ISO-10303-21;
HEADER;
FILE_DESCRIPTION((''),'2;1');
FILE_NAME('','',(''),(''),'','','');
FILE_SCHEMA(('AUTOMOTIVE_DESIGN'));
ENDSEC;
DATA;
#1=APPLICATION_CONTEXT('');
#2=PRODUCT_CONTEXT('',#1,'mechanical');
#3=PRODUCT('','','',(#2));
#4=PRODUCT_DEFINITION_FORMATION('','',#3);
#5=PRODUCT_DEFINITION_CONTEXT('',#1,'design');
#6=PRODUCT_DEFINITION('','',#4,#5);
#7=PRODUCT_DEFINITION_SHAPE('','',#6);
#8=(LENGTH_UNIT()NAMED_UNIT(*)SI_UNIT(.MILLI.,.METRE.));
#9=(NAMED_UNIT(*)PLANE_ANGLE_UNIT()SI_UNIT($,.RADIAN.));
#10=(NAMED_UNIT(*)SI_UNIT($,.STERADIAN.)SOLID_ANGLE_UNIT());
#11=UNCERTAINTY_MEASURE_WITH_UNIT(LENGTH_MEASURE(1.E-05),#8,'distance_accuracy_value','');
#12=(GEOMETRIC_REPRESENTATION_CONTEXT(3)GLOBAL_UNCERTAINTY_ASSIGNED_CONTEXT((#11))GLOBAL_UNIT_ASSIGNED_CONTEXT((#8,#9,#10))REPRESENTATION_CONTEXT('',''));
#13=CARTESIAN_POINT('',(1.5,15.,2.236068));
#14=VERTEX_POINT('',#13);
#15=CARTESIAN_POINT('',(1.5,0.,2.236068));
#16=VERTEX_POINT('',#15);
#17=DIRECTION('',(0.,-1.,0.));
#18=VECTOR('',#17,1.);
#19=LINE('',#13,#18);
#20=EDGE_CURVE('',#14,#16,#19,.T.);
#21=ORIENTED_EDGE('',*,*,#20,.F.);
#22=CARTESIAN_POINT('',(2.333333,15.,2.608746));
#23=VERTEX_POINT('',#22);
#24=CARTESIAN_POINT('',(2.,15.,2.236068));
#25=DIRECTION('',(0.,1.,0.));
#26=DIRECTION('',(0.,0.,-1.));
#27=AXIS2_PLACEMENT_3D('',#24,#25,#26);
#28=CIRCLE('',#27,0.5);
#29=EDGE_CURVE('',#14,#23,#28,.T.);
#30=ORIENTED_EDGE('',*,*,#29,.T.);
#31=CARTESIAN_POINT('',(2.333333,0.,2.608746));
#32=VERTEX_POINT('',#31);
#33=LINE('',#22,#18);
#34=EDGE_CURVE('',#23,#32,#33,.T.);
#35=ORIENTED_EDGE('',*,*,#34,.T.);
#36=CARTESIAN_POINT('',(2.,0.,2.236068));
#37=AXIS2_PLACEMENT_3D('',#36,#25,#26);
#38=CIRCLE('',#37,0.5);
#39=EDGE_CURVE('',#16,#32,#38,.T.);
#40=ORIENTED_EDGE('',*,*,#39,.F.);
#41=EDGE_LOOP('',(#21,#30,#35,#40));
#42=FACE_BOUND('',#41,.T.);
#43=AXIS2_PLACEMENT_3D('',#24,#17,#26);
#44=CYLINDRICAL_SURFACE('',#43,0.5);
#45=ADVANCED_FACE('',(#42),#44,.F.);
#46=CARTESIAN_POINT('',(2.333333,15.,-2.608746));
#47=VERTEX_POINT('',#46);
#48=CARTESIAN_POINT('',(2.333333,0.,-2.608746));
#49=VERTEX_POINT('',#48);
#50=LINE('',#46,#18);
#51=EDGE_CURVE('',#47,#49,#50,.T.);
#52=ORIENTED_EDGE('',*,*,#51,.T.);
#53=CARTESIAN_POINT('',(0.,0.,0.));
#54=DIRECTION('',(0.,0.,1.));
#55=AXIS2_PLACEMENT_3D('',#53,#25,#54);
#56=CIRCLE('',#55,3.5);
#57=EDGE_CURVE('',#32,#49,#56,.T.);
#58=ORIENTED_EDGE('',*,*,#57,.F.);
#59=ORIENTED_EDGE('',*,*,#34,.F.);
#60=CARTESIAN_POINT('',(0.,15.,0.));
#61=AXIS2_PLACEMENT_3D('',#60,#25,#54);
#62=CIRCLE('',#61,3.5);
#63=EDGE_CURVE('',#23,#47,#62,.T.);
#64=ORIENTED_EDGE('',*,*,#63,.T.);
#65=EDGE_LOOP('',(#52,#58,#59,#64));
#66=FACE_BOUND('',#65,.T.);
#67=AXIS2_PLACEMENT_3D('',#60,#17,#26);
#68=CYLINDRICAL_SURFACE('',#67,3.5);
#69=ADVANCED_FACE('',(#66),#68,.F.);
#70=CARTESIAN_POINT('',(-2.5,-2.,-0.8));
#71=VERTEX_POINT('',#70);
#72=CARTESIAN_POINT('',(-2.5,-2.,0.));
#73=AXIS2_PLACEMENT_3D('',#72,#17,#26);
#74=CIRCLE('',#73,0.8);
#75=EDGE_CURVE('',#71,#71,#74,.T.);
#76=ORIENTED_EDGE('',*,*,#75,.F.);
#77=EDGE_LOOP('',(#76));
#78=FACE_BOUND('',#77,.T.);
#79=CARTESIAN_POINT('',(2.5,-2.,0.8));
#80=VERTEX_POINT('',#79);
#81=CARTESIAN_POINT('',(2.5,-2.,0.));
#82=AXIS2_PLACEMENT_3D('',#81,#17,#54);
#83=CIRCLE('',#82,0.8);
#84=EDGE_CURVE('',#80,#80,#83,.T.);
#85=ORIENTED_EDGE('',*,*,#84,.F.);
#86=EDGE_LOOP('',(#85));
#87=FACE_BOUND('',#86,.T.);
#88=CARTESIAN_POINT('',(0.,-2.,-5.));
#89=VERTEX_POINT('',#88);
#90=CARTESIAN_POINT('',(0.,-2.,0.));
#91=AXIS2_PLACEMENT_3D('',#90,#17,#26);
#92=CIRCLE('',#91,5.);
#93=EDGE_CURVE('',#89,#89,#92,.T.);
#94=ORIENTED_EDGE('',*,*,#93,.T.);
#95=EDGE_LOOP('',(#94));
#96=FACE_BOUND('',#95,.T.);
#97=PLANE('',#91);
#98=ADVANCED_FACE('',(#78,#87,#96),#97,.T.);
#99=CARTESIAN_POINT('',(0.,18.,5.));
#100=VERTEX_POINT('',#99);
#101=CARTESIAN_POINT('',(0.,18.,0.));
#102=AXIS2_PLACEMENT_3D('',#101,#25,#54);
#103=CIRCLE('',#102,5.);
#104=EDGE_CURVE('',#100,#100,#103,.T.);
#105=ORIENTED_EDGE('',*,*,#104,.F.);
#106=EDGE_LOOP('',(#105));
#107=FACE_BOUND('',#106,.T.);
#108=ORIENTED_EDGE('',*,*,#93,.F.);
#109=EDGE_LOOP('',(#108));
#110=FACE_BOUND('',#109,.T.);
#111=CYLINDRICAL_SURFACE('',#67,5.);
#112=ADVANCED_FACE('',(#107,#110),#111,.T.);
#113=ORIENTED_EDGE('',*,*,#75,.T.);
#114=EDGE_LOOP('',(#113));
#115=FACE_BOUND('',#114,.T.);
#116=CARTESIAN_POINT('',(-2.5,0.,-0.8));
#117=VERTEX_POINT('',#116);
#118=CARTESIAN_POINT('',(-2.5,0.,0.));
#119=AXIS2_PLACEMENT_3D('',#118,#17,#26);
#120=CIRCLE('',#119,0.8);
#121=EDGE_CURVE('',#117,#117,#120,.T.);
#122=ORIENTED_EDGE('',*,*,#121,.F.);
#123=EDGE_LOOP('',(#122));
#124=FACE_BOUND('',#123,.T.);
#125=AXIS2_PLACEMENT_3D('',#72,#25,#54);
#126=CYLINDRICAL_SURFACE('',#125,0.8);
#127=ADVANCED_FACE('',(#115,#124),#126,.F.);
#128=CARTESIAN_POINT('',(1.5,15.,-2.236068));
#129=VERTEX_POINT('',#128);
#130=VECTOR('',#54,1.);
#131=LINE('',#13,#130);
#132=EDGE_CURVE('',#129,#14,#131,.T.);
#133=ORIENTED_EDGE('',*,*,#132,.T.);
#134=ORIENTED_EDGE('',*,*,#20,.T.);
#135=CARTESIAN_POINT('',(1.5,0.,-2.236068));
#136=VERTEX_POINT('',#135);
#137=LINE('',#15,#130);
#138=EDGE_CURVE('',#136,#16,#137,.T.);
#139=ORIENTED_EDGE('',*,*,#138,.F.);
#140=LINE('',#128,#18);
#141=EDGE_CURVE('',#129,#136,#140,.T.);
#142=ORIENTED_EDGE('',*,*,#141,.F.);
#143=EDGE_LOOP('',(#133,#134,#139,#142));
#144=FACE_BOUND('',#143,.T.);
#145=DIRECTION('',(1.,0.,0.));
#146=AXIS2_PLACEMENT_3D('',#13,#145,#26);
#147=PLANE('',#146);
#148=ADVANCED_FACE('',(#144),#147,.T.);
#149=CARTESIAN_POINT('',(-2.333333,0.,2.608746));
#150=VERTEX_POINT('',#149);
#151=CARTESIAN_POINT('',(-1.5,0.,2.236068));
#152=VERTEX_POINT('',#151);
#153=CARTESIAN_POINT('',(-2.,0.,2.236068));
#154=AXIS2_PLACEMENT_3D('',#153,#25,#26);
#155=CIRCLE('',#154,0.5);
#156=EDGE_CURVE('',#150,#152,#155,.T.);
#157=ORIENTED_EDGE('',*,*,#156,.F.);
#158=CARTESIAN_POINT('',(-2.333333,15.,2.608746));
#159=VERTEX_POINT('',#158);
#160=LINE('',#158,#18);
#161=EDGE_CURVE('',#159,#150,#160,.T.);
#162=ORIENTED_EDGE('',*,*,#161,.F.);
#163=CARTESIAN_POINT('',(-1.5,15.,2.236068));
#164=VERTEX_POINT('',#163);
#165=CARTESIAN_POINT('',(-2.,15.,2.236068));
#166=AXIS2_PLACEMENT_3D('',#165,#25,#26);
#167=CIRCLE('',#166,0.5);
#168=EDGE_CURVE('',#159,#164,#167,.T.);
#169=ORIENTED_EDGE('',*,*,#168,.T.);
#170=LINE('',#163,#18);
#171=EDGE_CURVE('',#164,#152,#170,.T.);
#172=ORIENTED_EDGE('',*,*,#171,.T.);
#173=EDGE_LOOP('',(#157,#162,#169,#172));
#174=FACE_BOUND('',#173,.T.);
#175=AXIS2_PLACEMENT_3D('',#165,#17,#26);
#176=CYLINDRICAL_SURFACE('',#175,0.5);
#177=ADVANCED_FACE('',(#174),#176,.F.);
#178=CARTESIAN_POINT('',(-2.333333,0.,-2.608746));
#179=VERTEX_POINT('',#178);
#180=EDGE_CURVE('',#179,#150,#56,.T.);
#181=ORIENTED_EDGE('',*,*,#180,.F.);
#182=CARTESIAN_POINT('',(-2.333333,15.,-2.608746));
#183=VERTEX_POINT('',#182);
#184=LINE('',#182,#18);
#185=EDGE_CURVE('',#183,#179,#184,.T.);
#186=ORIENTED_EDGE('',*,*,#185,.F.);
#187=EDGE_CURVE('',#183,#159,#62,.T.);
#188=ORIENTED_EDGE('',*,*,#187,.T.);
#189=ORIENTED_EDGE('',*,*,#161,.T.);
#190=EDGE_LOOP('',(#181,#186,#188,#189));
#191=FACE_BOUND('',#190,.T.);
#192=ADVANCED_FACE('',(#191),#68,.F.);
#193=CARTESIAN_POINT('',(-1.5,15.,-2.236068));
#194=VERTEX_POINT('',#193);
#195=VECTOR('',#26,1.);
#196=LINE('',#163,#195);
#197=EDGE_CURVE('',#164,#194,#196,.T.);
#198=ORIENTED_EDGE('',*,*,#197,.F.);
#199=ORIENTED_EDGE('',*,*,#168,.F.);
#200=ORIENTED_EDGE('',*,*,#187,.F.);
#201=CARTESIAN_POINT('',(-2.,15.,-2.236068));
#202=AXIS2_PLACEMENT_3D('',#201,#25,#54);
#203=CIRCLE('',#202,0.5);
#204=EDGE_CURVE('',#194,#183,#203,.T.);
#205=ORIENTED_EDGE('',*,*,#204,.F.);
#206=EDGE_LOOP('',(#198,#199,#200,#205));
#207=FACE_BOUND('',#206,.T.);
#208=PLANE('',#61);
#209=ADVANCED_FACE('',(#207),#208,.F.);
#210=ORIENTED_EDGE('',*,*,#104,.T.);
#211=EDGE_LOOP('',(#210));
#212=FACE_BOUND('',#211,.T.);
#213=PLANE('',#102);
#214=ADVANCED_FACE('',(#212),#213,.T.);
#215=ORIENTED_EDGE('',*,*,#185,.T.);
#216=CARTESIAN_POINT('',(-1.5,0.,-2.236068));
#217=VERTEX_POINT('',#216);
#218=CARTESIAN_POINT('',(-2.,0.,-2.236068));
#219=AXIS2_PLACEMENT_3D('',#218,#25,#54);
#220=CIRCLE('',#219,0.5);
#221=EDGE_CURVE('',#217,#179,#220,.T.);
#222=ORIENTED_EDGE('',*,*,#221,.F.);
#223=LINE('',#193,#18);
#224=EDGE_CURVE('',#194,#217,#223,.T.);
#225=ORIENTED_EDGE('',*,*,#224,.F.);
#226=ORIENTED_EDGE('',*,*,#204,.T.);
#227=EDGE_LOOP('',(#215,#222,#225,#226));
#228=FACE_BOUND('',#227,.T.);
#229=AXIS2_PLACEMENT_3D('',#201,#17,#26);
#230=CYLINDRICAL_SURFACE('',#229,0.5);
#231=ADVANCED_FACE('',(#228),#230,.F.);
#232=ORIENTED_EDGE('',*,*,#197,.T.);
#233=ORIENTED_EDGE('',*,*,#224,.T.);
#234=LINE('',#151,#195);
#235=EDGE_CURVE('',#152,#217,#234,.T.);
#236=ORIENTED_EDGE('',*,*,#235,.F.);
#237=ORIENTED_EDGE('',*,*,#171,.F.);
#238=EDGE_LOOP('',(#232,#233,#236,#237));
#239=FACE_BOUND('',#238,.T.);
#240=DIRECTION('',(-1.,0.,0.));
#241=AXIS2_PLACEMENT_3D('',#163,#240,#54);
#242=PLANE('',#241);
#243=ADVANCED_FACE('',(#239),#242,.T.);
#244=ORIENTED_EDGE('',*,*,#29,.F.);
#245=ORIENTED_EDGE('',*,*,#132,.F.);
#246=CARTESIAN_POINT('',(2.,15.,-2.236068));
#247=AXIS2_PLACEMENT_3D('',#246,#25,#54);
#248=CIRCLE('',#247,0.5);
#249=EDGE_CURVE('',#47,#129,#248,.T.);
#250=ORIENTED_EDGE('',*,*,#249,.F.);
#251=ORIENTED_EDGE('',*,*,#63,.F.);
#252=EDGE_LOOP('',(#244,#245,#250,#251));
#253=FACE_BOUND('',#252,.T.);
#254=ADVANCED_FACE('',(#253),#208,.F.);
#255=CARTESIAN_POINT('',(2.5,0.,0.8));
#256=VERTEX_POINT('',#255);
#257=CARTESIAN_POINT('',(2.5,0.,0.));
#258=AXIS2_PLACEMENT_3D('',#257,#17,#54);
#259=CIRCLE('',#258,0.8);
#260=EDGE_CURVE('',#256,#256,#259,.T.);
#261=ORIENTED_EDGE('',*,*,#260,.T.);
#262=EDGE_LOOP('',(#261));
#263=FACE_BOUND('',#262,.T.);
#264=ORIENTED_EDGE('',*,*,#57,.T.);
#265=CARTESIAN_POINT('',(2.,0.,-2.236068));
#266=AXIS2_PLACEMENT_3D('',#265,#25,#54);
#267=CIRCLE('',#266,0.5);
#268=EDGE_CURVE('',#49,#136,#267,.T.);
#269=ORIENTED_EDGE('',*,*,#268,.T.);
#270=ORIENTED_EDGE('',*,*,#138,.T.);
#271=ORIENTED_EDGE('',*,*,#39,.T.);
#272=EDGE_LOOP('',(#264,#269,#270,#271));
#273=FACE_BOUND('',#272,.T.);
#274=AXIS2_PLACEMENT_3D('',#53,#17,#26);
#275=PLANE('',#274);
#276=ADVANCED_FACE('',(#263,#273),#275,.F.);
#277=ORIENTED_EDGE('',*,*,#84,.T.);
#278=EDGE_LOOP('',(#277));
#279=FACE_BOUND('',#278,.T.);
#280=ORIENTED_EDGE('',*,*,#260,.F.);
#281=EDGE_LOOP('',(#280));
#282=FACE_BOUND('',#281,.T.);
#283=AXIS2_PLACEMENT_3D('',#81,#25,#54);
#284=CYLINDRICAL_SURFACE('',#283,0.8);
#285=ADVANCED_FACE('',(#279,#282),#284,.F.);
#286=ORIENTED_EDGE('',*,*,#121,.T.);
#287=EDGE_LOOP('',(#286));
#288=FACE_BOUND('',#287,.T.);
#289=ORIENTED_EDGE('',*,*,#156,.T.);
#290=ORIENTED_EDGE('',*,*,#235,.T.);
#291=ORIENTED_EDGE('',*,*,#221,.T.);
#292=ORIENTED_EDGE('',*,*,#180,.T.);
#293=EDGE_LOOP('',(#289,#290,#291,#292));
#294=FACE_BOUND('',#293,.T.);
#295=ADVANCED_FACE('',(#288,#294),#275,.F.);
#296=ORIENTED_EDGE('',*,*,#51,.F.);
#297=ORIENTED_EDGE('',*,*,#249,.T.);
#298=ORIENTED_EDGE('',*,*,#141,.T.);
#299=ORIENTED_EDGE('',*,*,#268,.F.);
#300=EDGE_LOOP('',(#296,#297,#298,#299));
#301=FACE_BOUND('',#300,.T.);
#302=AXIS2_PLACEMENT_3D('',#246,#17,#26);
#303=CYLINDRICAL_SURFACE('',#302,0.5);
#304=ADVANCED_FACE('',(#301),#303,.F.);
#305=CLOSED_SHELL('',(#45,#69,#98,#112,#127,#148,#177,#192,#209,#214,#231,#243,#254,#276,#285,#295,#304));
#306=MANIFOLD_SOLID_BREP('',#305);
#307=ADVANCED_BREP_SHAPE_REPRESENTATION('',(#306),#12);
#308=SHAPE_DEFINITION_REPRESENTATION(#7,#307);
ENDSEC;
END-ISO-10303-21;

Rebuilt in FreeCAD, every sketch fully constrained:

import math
import FreeCAD as App
import Part
import Sketcher
from FreeCAD import Vector
Q = App.Units.Quantity

doc = App.newDocument("Part")
params = doc.addObject("Spreadsheet::Sheet", "Params")
for row, (alias, value) in enumerate([
    ("sketch1_diameter", "10 mm"),
    ("sketch1_radius", "0.5 mm"),
    ("sketch1_radius2", "3.5 mm"),
    ("pad1_length", "15 mm"),
    ("sketch2_diameter", "10 mm"),
    ("sketch2_diameter2", "1.6 mm"),
    ("pad2_length", "2 mm"),
    ("sketch3_diameter", "10 mm"),
    ("pad3_length", "3 mm"),
], start=1):
    params.set(f"A{row}", alias)
    params.set(f"B{row}", "=" + value)
    params.setAlias(f"B{row}", alias)

body = doc.addObject("PartDesign::Body", "Body")

# Sketch on XZ plane
sketch1 = body.newObject("Sketcher::SketchObject", "Sketch")
sketch1.AttachmentSupport = (doc.getObject("XZ_Plane"), [""])
sketch1.MapMode = "FlatFace"
sketch1.addGeometry([
    Part.Circle(Vector(0, 0, 0), Vector(0, 0, 1), 5),  # 0
    Part.LineSegment(Vector(-1.5, -2.236068, 0), Vector(-1.5, 2.236068, 0)),  # 1
    Part.ArcOfCircle(Part.Circle(Vector(-2, 2.236068, 0), Vector(0, 0, 1), 0.5), math.radians(0), math.radians(131.810315)),  # 2
    Part.ArcOfCircle(Part.Circle(Vector(0, 0, 0), Vector(0, 0, 1), 3.5), math.radians(131.810315), math.radians(228.189685)),  # 3
    Part.ArcOfCircle(Part.Circle(Vector(-2, -2.236068, 0), Vector(0, 0, 1), 0.5), math.radians(-131.810315), math.radians(0)),  # 4
    Part.ArcOfCircle(Part.Circle(Vector(2, 2.236068, 0), Vector(0, 0, 1), 0.5), math.radians(48.189685), math.radians(180)),  # 5
    Part.LineSegment(Vector(1.5, 2.236068, 0), Vector(1.5, -2.236068, 0)),  # 6
    Part.ArcOfCircle(Part.Circle(Vector(2, -2.236068, 0), Vector(0, 0, 1), 0.5), math.radians(180), math.radians(311.810315)),  # 7
    Part.ArcOfCircle(Part.Circle(Vector(0, 0, 0), Vector(0, 0, 1), 3.5), math.radians(-48.189685), math.radians(48.189685)),  # 8
], False)
sketch1.addConstraint([
    Sketcher.Constraint("Tangent", 1, 2, 2, 1),
    Sketcher.Constraint("Tangent", 2, 2, 3, 1),
    Sketcher.Constraint("Tangent", 3, 2, 4, 1),
    Sketcher.Constraint("Tangent", 4, 2, 1, 1),
    Sketcher.Constraint("Tangent", 5, 2, 6, 1),
    Sketcher.Constraint("Tangent", 6, 2, 7, 1),
    Sketcher.Constraint("Tangent", 7, 2, 8, 1),
    Sketcher.Constraint("Tangent", 8, 2, 5, 1),
    Sketcher.Constraint("Vertical", 1),
    Sketcher.Constraint("Vertical", 6),
    Sketcher.Constraint("Coincident", 0, 3, -1, 1),
    Sketcher.Constraint("Coincident", 3, 3, -1, 1),
    Sketcher.Constraint("Coincident", 8, 3, -1, 1),
    Sketcher.Constraint("Equal", 2, 4),
    Sketcher.Constraint("Equal", 4, 5),
    Sketcher.Constraint("Equal", 5, 7),
    Sketcher.Constraint("Equal", 3, 8),
    Sketcher.Constraint("Horizontal", 2, 3, 5, 3),
    Sketcher.Constraint("Diameter", 0, Q("10 mm")),
    Sketcher.Constraint("Radius", 2, Q("0.5 mm")),
    Sketcher.Constraint("Radius", 3, Q("3.5 mm")),
    Sketcher.Constraint("DistanceX", 2, 3, -1, 1, Q("2 mm")),
])
sketch1.setExpression("Constraints[18]", "Params.sketch1_diameter")
sketch1.setExpression("Constraints[19]", "Params.sketch1_radius")
sketch1.setExpression("Constraints[20]", "Params.sketch1_radius2")
pad1 = body.newObject("PartDesign::Pad", "Pad")
pad1.Profile = sketch1
pad1.setExpression("Length", "Params.pad1_length")
pad1.Reversed = True

# Sketch on XZ plane
sketch2 = body.newObject("Sketcher::SketchObject", "Sketch001")
sketch2.AttachmentSupport = (doc.getObject("XZ_Plane"), [""])
sketch2.MapMode = "FlatFace"
sketch2.AttachmentOffset = App.Placement(Vector(0, 0, 2), App.Rotation())
sketch2.addGeometry([
    Part.Circle(Vector(0, 0, 0), Vector(0, 0, 1), 5),
    Part.Circle(Vector(-2.5, 0, 0), Vector(0, 0, 1), 0.8),
    Part.Circle(Vector(2.5, 0, 0), Vector(0, 0, 1), 0.8),
], False)
sketch2.addConstraint([
    Sketcher.Constraint("Coincident", 0, 3, -1, 1),
    Sketcher.Constraint("Equal", 1, 2),
    Sketcher.Constraint("Symmetric", 1, 3, 2, 3, -1, 1),
    Sketcher.Constraint("PointOnObject", 1, 3, -1),
    Sketcher.Constraint("Diameter", 0, Q("10 mm")),
    Sketcher.Constraint("Diameter", 1, Q("1.6 mm")),
    Sketcher.Constraint("DistanceX", 1, 3, 2, 3, Q("5 mm")),
])
sketch2.setExpression("Constraints[4]", "Params.sketch2_diameter")
sketch2.setExpression("Constraints[5]", "Params.sketch2_diameter2")
pad2 = body.newObject("PartDesign::Pad", "Pad001")
pad2.Profile = sketch2
pad2.setExpression("Length", "Params.pad2_length")
pad2.Reversed = True

# Sketch on XZ plane
sketch3 = body.newObject("Sketcher::SketchObject", "Sketch002")
sketch3.AttachmentSupport = (doc.getObject("XZ_Plane"), [""])
sketch3.MapMode = "FlatFace"
sketch3.AttachmentOffset = App.Placement(Vector(0, 0, -15), App.Rotation())
sketch3.addGeometry(Part.Circle(Vector(0, 0, 0), Vector(0, 0, 1), 5), False)
sketch3.addConstraint([
    Sketcher.Constraint("Coincident", 0, 3, -1, 1),
    Sketcher.Constraint("Diameter", 0, Q("10 mm")),
])
sketch3.setExpression("Constraints[1]", "Params.sketch3_diameter")
pad3 = body.newObject("PartDesign::Pad", "Pad002")
pad3.Profile = sketch3
pad3.setExpression("Length", "Params.pad3_length")
pad3.Reversed = True

doc.recompute()
